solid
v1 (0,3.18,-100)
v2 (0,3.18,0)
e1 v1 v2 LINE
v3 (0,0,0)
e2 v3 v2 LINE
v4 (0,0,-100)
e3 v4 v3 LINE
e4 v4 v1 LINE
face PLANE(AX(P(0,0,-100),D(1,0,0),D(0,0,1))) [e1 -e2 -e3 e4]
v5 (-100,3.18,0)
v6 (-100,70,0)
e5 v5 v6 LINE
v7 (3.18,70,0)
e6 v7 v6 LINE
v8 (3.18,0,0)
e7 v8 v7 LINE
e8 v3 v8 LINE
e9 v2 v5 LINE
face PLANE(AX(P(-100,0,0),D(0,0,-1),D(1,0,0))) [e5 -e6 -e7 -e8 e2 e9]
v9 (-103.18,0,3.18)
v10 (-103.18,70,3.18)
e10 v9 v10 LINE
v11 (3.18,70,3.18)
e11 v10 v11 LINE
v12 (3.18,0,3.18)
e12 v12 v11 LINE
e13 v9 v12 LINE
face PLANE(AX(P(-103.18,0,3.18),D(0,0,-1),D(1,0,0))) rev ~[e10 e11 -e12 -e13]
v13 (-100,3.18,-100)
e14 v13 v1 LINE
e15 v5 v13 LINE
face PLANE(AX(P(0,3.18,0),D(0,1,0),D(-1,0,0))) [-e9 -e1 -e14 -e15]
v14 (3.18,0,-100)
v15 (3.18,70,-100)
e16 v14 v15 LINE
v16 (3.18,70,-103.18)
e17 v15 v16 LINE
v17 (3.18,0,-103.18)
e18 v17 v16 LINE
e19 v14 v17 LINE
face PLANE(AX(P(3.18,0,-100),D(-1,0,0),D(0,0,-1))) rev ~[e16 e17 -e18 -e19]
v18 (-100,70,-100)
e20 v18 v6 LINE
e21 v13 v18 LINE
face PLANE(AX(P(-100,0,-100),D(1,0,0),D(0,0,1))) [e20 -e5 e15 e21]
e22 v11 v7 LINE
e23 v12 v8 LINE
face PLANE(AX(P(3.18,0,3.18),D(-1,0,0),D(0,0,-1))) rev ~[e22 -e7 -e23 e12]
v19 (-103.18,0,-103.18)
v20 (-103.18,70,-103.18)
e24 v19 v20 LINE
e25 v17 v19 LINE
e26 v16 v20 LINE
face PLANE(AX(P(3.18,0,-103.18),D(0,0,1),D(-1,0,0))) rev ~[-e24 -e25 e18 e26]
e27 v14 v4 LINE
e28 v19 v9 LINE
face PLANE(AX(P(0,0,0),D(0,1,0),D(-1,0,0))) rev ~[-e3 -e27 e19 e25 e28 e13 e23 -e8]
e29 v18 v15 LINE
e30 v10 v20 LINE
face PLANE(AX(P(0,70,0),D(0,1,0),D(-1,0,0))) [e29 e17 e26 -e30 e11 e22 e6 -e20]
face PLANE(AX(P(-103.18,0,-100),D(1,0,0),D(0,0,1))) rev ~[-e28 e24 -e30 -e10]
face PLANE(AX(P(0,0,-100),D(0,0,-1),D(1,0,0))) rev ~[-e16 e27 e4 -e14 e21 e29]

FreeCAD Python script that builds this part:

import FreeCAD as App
import Part
import Sketcher
from FreeCAD import Vector
Q = App.Units.Quantity


def add_polygon(sketch, points):
    """Adds a closed chain of lines whose ends are joined by coincident constraints."""
    first, n = sketch.GeometryCount, len(points)
    for a, b in zip(points, points[1:] + points[:1]):
        sketch.addGeometry(Part.LineSegment(App.Vector(*a, 0), App.Vector(*b, 0)), False)
    for i in range(n):
        sketch.addConstraint(Sketcher.Constraint("Coincident", first + i, 2, first + (i + 1) % n, 1))

doc = App.newDocument("Part")
params = doc.addObject("Spreadsheet::Sheet", "Params")
for row, (alias, value) in enumerate([
    ("sketch1_width", "3.937 in"),
    ("pad1_length", "0.1251969 in"),
    ("sketch2_height", "3.937 in"),
    ("pad2_length", "2.7559055 in"),
], start=1):
    params.set(f"A{row}", alias)
    params.set(f"B{row}", "=" + value)
    params.setAlias(f"B{row}", alias)

body = doc.addObject("PartDesign::Body", "Body")

# Sketch on XZ plane
sketch1 = body.newObject("Sketcher::SketchObject", "Sketch")
sketch1.AttachmentSupport = (doc.getObject("XZ_Plane"), [""])
sketch1.MapMode = "FlatFace"
add_polygon(sketch1, [(-100, 0), (0, 0), (0, -100), (-100, -100)])  # lines 0-3
sketch1.addConstraint(Sketcher.Constraint("Horizontal", 0))
sketch1.addConstraint(Sketcher.Constraint("Vertical", 1))
sketch1.addConstraint(Sketcher.Constraint("Horizontal", 2))
sketch1.addConstraint(Sketcher.Constraint("Vertical", 3))
sketch1.addConstraint(Sketcher.Constraint("Coincident", 0, 2, -1, 1))
sketch1.addConstraint(Sketcher.Constraint("Equal", 2, 1))
sketch1.addConstraint(Sketcher.Constraint("DistanceX", 0, 1, 0, 2, Q("3.937 in")))
sketch1.setExpression("Constraints[10]", "Params.sketch1_width")
pad1 = body.newObject("PartDesign::Pad", "Pad")
pad1.Profile = sketch1
pad1.setExpression("Length", "Params.pad1_length")
pad1.Reversed = True

# Sketch on XZ plane
sketch2 = body.newObject("Sketcher::SketchObject", "Sketch001")
sketch2.AttachmentSupport = (doc.getObject("XZ_Plane"), [""])
sketch2.MapMode = "FlatFace"
add_polygon(sketch2, [(-103.2, 3.2), (3.2, 3.2), (3.2, 0), (-100, 0), (-100, -100), (3.2, -100), (3.2, -103.2), (-103.2, -103.2)])  # lines 0-7
sketch2.addConstraint(Sketcher.Constraint("Horizontal", 0))
sketch2.addConstraint(Sketcher.Constraint("Vertical", 1))
sketch2.addConstraint(Sketcher.Constraint("Horizontal", 2))
sketch2.addConstraint(Sketcher.Constraint("Vertical", 3))
sketch2.addConstraint(Sketcher.Constraint("Horizontal", 4))
sketch2.addConstraint(Sketcher.Constraint("Vertical", 5))
sketch2.addConstraint(Sketcher.Constraint("Horizontal", 6))
sketch2.addConstraint(Sketcher.Constraint("Vertical", 7))
sketch2.addConstraint(Sketcher.Constraint("PointOnObject", 1, 2, -1))
sketch2.addConstraint(Sketcher.Constraint("Vertical", 1, 2, 4, 2))
sketch2.addConstraint(Sketcher.Constraint("Equal", 1, 5))
sketch2.addConstraint(Sketcher.Constraint("Equal", 6, 7))
sketch2.addConstraint(Sketcher.Constraint("DistanceY", 1, 2, 1, 1, Q("0.1252 in")))
sketch2.addConstraint(Sketcher.Constraint("DistanceX", -1, 1, 0, 2, Q("0.1252 in")))
sketch2.addConstraint(Sketcher.Constraint("DistanceX", 6, 2, 3, 2, Q("0.1252 in")))
sketch2.addConstraint(Sketcher.Constraint("DistanceY", 3, 2, 3, 1, Q("3.937 in")))
sketch2.setExpression("Constraints[23]", "Params.sketch2_height")
pad2 = body.newObject("PartDesign::Pad", "Pad001")
pad2.Profile = sketch2
pad2.setExpression("Length", "Params.pad2_length")
pad2.Reversed = True

doc.recompute()
